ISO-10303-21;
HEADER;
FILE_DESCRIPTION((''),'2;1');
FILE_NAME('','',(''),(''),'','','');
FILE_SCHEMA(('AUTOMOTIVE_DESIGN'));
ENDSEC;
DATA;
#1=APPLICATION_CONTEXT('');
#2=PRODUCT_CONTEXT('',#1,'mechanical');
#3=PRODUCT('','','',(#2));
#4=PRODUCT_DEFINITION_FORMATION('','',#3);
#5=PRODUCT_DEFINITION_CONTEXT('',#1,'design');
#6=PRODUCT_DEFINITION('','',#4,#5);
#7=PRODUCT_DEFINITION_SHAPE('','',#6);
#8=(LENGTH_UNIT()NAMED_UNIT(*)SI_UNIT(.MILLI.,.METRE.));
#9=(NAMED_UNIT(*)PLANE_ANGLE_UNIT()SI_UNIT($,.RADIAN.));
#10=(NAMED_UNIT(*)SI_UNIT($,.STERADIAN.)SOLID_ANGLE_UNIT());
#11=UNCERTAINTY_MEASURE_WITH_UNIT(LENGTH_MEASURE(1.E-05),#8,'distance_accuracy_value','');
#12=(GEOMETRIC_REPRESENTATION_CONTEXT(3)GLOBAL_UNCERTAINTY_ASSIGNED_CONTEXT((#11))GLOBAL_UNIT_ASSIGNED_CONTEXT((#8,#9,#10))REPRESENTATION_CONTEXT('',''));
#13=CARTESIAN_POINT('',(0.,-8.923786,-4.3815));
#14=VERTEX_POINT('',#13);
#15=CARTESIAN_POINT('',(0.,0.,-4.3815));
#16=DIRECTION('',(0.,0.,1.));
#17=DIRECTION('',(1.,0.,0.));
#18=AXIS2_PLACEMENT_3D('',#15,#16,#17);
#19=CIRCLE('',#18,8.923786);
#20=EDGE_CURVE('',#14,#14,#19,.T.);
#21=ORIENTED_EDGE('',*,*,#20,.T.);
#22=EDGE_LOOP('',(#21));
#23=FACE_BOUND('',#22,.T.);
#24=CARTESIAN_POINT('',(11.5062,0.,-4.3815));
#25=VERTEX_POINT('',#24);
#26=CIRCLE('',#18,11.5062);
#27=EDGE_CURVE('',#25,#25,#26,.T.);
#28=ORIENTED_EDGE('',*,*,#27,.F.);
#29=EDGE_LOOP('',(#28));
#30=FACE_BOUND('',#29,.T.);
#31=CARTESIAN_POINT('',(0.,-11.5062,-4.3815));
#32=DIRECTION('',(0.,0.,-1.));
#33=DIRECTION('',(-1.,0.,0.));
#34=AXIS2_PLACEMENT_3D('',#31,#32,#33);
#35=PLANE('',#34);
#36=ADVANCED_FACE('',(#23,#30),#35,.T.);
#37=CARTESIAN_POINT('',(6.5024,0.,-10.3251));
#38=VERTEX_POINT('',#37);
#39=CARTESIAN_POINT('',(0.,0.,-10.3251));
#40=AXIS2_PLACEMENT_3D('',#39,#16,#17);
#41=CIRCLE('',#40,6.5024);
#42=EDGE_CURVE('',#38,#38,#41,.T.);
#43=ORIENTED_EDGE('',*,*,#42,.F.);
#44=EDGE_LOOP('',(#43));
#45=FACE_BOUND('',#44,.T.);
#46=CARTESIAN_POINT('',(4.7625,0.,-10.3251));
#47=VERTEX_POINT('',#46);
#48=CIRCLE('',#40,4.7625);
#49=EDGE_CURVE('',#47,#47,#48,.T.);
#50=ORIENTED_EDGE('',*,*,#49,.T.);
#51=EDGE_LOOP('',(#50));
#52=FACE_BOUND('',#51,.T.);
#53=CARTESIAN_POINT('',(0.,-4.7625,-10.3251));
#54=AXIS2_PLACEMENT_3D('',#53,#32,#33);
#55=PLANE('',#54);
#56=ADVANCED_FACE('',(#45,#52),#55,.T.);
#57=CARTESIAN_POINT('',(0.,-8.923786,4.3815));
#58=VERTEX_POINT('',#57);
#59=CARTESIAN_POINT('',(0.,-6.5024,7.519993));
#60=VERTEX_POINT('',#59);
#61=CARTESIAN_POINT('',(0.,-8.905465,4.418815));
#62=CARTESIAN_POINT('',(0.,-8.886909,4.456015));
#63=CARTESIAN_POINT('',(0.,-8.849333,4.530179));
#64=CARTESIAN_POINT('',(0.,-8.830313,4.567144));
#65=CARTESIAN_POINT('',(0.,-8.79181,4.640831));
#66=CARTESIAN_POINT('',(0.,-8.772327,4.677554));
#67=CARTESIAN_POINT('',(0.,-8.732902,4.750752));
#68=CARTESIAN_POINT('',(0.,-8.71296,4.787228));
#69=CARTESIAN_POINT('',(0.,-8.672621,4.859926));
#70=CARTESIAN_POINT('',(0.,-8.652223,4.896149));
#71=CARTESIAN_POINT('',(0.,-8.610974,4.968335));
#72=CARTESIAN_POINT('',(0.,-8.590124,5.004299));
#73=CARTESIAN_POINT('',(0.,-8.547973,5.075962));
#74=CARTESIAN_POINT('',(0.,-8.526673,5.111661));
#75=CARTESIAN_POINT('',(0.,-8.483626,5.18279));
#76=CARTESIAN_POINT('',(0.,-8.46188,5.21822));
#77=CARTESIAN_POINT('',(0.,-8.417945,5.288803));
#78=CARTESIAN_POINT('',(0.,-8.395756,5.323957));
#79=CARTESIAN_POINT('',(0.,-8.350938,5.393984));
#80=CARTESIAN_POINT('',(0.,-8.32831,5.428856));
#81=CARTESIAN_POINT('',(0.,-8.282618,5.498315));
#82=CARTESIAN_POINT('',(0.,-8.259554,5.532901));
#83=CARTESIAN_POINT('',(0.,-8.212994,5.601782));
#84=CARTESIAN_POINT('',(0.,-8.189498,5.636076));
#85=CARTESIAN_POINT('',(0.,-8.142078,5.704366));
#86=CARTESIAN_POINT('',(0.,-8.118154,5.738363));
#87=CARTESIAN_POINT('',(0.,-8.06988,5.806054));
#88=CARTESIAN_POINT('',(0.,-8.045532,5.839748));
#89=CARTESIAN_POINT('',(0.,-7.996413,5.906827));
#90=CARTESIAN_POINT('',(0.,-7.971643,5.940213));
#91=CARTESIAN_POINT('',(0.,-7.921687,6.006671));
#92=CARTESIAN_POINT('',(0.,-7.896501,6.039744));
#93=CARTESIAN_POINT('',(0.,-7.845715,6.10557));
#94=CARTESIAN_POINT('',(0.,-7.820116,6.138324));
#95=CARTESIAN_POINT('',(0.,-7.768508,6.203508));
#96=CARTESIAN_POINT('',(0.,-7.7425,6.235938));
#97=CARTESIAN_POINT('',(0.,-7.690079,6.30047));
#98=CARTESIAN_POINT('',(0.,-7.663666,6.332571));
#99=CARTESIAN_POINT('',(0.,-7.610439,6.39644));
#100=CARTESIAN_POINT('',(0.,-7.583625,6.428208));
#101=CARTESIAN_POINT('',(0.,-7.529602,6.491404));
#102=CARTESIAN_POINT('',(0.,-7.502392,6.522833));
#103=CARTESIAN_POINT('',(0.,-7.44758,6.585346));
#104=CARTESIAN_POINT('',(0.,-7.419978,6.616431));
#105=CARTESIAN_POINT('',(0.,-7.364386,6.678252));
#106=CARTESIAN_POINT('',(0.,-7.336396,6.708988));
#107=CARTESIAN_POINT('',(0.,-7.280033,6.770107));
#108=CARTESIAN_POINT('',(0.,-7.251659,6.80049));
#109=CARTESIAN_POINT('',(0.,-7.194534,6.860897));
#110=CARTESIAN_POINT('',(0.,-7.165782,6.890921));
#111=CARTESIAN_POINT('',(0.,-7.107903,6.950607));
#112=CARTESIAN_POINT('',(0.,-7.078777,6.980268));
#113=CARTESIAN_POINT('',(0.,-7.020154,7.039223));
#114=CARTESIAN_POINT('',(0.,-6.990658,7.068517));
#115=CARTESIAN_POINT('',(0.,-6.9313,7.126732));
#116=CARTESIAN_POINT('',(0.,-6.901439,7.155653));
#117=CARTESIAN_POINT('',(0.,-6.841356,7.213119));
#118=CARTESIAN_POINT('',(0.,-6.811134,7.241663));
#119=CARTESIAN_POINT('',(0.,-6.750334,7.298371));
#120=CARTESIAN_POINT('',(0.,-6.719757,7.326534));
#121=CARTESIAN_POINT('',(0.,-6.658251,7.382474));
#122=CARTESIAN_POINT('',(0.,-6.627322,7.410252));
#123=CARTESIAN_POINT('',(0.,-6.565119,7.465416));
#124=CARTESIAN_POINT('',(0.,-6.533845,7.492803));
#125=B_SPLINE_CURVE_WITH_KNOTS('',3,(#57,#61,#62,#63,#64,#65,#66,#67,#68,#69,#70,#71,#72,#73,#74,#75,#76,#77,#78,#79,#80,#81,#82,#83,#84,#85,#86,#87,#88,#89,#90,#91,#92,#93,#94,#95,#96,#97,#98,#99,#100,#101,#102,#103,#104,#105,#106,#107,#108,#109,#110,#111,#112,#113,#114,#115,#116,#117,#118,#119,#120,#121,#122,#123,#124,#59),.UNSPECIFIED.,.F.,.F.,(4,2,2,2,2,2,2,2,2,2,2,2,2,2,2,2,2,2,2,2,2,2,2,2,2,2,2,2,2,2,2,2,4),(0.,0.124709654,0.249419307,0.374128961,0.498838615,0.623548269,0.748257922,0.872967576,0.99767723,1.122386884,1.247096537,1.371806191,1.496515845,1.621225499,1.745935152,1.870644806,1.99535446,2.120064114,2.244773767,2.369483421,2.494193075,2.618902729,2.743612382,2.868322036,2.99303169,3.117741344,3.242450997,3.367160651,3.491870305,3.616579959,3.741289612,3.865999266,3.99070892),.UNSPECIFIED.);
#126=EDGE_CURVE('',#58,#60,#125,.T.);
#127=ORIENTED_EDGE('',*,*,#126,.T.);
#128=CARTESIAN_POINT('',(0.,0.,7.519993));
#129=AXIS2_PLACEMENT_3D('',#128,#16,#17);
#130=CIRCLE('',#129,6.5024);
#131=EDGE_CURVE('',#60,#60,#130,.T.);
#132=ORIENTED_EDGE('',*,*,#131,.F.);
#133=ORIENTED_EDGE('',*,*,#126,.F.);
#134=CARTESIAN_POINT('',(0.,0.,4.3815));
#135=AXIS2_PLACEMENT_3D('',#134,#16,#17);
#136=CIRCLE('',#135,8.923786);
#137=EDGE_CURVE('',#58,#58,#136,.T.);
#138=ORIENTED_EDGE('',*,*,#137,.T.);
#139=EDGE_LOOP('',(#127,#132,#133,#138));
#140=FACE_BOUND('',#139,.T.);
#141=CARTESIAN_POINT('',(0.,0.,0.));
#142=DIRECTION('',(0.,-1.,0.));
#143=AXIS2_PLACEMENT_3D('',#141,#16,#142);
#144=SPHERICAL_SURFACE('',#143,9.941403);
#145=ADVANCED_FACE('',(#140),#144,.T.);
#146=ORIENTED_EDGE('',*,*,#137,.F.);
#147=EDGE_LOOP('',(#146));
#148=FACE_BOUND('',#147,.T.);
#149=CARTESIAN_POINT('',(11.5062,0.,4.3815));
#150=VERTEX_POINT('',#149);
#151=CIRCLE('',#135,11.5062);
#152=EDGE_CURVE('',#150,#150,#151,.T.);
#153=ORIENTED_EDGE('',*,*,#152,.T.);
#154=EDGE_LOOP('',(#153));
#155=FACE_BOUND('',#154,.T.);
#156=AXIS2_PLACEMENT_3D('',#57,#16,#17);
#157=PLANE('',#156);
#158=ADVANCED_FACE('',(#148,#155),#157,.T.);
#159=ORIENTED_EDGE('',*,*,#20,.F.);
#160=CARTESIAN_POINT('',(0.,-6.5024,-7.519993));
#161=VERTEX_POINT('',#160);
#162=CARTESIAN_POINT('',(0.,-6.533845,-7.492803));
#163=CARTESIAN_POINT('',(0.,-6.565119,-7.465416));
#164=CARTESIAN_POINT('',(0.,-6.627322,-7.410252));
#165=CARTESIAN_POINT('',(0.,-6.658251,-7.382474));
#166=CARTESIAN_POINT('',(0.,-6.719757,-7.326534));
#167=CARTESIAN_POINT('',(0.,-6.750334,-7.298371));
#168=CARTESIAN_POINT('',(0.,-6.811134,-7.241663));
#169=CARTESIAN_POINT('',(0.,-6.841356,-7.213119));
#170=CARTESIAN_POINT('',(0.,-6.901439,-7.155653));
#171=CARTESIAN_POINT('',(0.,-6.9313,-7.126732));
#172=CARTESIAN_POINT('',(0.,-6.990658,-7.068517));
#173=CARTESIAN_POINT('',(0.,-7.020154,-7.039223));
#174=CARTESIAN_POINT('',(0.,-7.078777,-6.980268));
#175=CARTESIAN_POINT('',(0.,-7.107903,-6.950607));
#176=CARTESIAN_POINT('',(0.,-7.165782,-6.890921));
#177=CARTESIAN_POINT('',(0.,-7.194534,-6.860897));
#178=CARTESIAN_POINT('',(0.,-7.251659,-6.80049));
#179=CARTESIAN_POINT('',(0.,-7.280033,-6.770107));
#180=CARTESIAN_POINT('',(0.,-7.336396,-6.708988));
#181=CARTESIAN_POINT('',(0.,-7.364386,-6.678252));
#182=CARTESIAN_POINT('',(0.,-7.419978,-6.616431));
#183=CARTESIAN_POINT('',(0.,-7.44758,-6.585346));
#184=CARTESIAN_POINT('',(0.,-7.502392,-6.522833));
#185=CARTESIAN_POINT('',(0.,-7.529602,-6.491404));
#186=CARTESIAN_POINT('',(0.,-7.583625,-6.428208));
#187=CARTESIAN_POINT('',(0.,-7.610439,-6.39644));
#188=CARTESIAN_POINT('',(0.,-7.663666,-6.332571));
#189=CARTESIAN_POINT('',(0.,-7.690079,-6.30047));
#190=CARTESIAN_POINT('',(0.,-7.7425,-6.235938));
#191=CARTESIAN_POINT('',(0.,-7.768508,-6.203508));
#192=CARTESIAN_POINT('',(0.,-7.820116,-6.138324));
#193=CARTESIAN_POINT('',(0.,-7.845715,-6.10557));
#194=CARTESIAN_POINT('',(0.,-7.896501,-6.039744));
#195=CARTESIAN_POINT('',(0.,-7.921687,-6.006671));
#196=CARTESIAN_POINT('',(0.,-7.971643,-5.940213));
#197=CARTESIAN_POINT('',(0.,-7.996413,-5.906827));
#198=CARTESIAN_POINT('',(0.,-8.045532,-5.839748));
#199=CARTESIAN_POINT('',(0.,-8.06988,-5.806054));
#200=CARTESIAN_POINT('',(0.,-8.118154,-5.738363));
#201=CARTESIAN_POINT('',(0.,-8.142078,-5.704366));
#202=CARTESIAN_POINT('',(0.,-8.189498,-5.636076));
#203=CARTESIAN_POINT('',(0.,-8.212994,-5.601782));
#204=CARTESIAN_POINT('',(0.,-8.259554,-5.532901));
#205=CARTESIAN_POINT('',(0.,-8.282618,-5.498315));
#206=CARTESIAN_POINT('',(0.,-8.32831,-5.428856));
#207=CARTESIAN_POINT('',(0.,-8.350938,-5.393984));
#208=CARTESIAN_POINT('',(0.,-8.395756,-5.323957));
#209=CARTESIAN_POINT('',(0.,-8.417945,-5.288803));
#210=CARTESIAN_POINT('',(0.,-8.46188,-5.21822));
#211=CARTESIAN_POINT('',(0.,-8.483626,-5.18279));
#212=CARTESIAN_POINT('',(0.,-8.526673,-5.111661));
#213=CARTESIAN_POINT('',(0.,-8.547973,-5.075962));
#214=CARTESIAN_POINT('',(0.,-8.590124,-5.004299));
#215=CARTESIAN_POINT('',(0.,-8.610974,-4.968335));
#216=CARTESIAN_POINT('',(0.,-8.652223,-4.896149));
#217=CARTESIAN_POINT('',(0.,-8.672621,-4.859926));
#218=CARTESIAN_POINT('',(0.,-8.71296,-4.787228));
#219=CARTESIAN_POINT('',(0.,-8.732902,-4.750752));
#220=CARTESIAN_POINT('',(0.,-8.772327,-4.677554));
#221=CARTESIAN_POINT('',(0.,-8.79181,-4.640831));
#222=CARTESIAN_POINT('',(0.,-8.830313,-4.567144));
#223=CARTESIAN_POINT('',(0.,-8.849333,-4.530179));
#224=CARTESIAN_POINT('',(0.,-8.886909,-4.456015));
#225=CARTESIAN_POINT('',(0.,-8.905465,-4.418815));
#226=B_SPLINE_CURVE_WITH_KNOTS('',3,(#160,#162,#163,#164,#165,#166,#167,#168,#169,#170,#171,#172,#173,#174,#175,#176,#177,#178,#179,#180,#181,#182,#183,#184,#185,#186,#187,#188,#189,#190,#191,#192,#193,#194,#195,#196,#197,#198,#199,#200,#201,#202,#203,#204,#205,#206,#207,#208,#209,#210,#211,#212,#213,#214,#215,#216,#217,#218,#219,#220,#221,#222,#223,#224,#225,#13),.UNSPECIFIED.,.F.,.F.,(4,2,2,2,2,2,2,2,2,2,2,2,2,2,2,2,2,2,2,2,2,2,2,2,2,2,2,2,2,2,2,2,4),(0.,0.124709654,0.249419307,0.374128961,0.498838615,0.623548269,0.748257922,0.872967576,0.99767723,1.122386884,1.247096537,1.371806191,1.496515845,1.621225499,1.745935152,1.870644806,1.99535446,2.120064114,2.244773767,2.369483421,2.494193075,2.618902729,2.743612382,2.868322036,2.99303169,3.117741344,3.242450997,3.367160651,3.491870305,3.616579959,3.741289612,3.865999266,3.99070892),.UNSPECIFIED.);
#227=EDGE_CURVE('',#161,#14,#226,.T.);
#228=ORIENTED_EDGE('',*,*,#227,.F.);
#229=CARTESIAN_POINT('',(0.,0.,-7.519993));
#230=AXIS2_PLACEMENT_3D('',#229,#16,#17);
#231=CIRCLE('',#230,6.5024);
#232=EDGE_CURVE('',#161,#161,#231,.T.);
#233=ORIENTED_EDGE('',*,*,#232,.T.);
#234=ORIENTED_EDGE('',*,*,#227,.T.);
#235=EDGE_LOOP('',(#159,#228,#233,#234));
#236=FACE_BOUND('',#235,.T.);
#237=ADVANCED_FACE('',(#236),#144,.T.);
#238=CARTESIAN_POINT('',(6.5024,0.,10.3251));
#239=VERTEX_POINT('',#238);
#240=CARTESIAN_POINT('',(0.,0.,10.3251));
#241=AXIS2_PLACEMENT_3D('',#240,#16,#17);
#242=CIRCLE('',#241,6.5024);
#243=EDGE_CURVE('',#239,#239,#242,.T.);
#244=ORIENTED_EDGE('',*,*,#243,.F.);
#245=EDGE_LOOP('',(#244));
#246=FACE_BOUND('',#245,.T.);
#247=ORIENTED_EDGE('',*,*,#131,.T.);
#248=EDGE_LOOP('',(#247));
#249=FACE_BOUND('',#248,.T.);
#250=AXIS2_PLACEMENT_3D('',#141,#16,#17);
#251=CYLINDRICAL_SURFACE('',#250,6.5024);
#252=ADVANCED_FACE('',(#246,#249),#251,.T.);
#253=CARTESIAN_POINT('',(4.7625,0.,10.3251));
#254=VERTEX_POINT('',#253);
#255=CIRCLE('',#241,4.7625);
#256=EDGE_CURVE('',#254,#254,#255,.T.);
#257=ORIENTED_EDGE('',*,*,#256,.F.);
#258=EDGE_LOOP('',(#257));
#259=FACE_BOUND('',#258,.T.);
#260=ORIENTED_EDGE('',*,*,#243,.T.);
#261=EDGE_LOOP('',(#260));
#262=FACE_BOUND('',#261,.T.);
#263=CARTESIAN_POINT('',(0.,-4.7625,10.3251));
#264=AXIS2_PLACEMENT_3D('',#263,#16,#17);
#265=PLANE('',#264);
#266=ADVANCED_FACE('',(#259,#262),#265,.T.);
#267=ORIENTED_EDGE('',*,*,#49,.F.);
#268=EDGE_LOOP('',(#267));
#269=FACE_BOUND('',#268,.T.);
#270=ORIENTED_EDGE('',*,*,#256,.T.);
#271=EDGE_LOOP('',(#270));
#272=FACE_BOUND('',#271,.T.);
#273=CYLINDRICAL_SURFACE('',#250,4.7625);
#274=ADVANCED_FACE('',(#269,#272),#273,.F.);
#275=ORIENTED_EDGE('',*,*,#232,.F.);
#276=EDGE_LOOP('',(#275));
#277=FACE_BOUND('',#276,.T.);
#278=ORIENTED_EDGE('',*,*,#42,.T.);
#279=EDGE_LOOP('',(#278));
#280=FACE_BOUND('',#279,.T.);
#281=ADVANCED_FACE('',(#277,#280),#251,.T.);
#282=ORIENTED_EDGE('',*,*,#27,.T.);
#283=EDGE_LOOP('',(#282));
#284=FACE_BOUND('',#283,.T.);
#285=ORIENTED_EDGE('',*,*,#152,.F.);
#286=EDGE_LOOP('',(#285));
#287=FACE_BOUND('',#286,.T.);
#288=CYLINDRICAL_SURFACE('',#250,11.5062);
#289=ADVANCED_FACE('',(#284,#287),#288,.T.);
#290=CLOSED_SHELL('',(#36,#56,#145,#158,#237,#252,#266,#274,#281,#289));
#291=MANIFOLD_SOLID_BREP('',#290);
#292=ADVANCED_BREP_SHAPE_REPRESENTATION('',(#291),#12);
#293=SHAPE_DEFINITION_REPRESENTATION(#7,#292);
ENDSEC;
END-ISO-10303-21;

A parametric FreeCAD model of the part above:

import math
import FreeCAD as App
import Part
import Sketcher
from FreeCAD import Vector
Q = App.Units.Quantity

doc = App.newDocument("Part")
body = doc.addObject("PartDesign::Body", "Body")

# Sketch on YZ plane
sketch1 = body.newObject("Sketcher::SketchObject", "Sketch")
sketch1.AttachmentSupport = (doc.getObject("YZ_Plane"), [""])
sketch1.MapMode = "FlatFace"
sketch1.addGeometry(Part.LineSegment(Vector(-4.8, -10.3, 0), Vector(-4.8, 10.3, 0)), False)
sketch1.addGeometry(Part.LineSegment(Vector(-4.8, 10.3, 0), Vector(-6.5, 10.3, 0)), False)
sketch1.addGeometry(Part.LineSegment(Vector(-6.5, 10.3, 0), Vector(-6.5, 7.5, 0)), False)
sketch1.addGeometry(Part.ArcOfCircle(Part.Circle(Vector(0, 0, 0), Vector(0, 0, 1), 9.9), math.radians(131), math.radians(154)), False)
sketch1.addGeometry(Part.LineSegment(Vector(-8.9, 4.4, 0), Vector(-11.5, 4.4, 0)), False)
sketch1.addGeometry(Part.LineSegment(Vector(-11.5, 4.4, 0), Vector(-11.5, -4.4, 0)), False)
sketch1.addGeometry(Part.LineSegment(Vector(-11.5, -4.4, 0), Vector(-8.9, -4.4, 0)), False)
sketch1.addGeometry(Part.ArcOfCircle(Part.Circle(Vector(0, 0, 0), Vector(0, 0, 1), 9.9), math.radians(-154), math.radians(-131)), False)
sketch1.addGeometry(Part.LineSegment(Vector(-6.5, -7.5, 0), Vector(-6.5, -10.3, 0)), False)
sketch1.addGeometry(Part.LineSegment(Vector(-6.5, -10.3, 0), Vector(-4.8, -10.3, 0)), False)
sketch1.addConstraint(Sketcher.Constraint("Coincident", 0, 2, 1, 1))
sketch1.addConstraint(Sketcher.Constraint("Coincident", 1, 2, 2, 1))
sketch1.addConstraint(Sketcher.Constraint("Coincident", 2, 2, 3, 1))
sketch1.addConstraint(Sketcher.Constraint("Coincident", 3, 2, 4, 1))
sketch1.addConstraint(Sketcher.Constraint("Coincident", 4, 2, 5, 1))
sketch1.addConstraint(Sketcher.Constraint("Coincident", 5, 2, 6, 1))
sketch1.addConstraint(Sketcher.Constraint("Coincident", 6, 2, 7, 1))
sketch1.addConstraint(Sketcher.Constraint("Coincident", 7, 2, 8, 1))
sketch1.addConstraint(Sketcher.Constraint("Coincident", 8, 2, 9, 1))
sketch1.addConstraint(Sketcher.Constraint("Coincident", 9, 2, 0, 1))
sketch1.addConstraint(Sketcher.Constraint("Vertical", 0))
sketch1.addConstraint(Sketcher.Constraint("Horizontal", 1))
sketch1.addConstraint(Sketcher.Constraint("Vertical", 2))
sketch1.addConstraint(Sketcher.Constraint("Horizontal", 4))
sketch1.addConstraint(Sketcher.Constraint("Vertical", 5))
sketch1.addConstraint(Sketcher.Constraint("Horizontal", 6))
sketch1.addConstraint(Sketcher.Constraint("Vertical", 8))
sketch1.addConstraint(Sketcher.Constraint("Horizontal", 9))
sketch1.addConstraint(Sketcher.Constraint("Coincident", 3, 3, -1, 1))
sketch1.addConstraint(Sketcher.Constraint("Coincident", 7, 3, -1, 1))
sketch1.addConstraint(Sketcher.Constraint("Equal", 3, 7))
sketch1.addConstraint(Sketcher.Constraint("Symmetric", 1, 2, 8, 2, -1))
sketch1.addConstraint(Sketcher.Constraint("Vertical", 3, 2, 6, 2))
sketch1.addConstraint(Sketcher.Constraint("DistanceY", 0, 1, 0, 2, Q("0.813 in")))
sketch1.addConstraint(Sketcher.Constraint("DistanceY", 5, 2, 5, 1, Q("0.345 in")))
sketch1.addConstraint(Sketcher.Constraint("DistanceX", 1, 2, 1, 1, Q("0.0685 in")))
sketch1.addConstraint(Sketcher.Constraint("DistanceX", 0, 2, -1, 1, Q("0.1875 in")))
sketch1.addConstraint(Sketcher.Constraint("DistanceX", 4, 2, -1, 1, Q("0.453 in")))
sketch1.addConstraint(Sketcher.Constraint("Radius", 3, Q("9.941403 mm")))
revolution = body.newObject("PartDesign::Revolution", "Revolution")
revolution.Profile = sketch1
revolution.ReferenceAxis = (sketch1, ["V_Axis"])
revolution.Angle = 360

doc.recompute()
